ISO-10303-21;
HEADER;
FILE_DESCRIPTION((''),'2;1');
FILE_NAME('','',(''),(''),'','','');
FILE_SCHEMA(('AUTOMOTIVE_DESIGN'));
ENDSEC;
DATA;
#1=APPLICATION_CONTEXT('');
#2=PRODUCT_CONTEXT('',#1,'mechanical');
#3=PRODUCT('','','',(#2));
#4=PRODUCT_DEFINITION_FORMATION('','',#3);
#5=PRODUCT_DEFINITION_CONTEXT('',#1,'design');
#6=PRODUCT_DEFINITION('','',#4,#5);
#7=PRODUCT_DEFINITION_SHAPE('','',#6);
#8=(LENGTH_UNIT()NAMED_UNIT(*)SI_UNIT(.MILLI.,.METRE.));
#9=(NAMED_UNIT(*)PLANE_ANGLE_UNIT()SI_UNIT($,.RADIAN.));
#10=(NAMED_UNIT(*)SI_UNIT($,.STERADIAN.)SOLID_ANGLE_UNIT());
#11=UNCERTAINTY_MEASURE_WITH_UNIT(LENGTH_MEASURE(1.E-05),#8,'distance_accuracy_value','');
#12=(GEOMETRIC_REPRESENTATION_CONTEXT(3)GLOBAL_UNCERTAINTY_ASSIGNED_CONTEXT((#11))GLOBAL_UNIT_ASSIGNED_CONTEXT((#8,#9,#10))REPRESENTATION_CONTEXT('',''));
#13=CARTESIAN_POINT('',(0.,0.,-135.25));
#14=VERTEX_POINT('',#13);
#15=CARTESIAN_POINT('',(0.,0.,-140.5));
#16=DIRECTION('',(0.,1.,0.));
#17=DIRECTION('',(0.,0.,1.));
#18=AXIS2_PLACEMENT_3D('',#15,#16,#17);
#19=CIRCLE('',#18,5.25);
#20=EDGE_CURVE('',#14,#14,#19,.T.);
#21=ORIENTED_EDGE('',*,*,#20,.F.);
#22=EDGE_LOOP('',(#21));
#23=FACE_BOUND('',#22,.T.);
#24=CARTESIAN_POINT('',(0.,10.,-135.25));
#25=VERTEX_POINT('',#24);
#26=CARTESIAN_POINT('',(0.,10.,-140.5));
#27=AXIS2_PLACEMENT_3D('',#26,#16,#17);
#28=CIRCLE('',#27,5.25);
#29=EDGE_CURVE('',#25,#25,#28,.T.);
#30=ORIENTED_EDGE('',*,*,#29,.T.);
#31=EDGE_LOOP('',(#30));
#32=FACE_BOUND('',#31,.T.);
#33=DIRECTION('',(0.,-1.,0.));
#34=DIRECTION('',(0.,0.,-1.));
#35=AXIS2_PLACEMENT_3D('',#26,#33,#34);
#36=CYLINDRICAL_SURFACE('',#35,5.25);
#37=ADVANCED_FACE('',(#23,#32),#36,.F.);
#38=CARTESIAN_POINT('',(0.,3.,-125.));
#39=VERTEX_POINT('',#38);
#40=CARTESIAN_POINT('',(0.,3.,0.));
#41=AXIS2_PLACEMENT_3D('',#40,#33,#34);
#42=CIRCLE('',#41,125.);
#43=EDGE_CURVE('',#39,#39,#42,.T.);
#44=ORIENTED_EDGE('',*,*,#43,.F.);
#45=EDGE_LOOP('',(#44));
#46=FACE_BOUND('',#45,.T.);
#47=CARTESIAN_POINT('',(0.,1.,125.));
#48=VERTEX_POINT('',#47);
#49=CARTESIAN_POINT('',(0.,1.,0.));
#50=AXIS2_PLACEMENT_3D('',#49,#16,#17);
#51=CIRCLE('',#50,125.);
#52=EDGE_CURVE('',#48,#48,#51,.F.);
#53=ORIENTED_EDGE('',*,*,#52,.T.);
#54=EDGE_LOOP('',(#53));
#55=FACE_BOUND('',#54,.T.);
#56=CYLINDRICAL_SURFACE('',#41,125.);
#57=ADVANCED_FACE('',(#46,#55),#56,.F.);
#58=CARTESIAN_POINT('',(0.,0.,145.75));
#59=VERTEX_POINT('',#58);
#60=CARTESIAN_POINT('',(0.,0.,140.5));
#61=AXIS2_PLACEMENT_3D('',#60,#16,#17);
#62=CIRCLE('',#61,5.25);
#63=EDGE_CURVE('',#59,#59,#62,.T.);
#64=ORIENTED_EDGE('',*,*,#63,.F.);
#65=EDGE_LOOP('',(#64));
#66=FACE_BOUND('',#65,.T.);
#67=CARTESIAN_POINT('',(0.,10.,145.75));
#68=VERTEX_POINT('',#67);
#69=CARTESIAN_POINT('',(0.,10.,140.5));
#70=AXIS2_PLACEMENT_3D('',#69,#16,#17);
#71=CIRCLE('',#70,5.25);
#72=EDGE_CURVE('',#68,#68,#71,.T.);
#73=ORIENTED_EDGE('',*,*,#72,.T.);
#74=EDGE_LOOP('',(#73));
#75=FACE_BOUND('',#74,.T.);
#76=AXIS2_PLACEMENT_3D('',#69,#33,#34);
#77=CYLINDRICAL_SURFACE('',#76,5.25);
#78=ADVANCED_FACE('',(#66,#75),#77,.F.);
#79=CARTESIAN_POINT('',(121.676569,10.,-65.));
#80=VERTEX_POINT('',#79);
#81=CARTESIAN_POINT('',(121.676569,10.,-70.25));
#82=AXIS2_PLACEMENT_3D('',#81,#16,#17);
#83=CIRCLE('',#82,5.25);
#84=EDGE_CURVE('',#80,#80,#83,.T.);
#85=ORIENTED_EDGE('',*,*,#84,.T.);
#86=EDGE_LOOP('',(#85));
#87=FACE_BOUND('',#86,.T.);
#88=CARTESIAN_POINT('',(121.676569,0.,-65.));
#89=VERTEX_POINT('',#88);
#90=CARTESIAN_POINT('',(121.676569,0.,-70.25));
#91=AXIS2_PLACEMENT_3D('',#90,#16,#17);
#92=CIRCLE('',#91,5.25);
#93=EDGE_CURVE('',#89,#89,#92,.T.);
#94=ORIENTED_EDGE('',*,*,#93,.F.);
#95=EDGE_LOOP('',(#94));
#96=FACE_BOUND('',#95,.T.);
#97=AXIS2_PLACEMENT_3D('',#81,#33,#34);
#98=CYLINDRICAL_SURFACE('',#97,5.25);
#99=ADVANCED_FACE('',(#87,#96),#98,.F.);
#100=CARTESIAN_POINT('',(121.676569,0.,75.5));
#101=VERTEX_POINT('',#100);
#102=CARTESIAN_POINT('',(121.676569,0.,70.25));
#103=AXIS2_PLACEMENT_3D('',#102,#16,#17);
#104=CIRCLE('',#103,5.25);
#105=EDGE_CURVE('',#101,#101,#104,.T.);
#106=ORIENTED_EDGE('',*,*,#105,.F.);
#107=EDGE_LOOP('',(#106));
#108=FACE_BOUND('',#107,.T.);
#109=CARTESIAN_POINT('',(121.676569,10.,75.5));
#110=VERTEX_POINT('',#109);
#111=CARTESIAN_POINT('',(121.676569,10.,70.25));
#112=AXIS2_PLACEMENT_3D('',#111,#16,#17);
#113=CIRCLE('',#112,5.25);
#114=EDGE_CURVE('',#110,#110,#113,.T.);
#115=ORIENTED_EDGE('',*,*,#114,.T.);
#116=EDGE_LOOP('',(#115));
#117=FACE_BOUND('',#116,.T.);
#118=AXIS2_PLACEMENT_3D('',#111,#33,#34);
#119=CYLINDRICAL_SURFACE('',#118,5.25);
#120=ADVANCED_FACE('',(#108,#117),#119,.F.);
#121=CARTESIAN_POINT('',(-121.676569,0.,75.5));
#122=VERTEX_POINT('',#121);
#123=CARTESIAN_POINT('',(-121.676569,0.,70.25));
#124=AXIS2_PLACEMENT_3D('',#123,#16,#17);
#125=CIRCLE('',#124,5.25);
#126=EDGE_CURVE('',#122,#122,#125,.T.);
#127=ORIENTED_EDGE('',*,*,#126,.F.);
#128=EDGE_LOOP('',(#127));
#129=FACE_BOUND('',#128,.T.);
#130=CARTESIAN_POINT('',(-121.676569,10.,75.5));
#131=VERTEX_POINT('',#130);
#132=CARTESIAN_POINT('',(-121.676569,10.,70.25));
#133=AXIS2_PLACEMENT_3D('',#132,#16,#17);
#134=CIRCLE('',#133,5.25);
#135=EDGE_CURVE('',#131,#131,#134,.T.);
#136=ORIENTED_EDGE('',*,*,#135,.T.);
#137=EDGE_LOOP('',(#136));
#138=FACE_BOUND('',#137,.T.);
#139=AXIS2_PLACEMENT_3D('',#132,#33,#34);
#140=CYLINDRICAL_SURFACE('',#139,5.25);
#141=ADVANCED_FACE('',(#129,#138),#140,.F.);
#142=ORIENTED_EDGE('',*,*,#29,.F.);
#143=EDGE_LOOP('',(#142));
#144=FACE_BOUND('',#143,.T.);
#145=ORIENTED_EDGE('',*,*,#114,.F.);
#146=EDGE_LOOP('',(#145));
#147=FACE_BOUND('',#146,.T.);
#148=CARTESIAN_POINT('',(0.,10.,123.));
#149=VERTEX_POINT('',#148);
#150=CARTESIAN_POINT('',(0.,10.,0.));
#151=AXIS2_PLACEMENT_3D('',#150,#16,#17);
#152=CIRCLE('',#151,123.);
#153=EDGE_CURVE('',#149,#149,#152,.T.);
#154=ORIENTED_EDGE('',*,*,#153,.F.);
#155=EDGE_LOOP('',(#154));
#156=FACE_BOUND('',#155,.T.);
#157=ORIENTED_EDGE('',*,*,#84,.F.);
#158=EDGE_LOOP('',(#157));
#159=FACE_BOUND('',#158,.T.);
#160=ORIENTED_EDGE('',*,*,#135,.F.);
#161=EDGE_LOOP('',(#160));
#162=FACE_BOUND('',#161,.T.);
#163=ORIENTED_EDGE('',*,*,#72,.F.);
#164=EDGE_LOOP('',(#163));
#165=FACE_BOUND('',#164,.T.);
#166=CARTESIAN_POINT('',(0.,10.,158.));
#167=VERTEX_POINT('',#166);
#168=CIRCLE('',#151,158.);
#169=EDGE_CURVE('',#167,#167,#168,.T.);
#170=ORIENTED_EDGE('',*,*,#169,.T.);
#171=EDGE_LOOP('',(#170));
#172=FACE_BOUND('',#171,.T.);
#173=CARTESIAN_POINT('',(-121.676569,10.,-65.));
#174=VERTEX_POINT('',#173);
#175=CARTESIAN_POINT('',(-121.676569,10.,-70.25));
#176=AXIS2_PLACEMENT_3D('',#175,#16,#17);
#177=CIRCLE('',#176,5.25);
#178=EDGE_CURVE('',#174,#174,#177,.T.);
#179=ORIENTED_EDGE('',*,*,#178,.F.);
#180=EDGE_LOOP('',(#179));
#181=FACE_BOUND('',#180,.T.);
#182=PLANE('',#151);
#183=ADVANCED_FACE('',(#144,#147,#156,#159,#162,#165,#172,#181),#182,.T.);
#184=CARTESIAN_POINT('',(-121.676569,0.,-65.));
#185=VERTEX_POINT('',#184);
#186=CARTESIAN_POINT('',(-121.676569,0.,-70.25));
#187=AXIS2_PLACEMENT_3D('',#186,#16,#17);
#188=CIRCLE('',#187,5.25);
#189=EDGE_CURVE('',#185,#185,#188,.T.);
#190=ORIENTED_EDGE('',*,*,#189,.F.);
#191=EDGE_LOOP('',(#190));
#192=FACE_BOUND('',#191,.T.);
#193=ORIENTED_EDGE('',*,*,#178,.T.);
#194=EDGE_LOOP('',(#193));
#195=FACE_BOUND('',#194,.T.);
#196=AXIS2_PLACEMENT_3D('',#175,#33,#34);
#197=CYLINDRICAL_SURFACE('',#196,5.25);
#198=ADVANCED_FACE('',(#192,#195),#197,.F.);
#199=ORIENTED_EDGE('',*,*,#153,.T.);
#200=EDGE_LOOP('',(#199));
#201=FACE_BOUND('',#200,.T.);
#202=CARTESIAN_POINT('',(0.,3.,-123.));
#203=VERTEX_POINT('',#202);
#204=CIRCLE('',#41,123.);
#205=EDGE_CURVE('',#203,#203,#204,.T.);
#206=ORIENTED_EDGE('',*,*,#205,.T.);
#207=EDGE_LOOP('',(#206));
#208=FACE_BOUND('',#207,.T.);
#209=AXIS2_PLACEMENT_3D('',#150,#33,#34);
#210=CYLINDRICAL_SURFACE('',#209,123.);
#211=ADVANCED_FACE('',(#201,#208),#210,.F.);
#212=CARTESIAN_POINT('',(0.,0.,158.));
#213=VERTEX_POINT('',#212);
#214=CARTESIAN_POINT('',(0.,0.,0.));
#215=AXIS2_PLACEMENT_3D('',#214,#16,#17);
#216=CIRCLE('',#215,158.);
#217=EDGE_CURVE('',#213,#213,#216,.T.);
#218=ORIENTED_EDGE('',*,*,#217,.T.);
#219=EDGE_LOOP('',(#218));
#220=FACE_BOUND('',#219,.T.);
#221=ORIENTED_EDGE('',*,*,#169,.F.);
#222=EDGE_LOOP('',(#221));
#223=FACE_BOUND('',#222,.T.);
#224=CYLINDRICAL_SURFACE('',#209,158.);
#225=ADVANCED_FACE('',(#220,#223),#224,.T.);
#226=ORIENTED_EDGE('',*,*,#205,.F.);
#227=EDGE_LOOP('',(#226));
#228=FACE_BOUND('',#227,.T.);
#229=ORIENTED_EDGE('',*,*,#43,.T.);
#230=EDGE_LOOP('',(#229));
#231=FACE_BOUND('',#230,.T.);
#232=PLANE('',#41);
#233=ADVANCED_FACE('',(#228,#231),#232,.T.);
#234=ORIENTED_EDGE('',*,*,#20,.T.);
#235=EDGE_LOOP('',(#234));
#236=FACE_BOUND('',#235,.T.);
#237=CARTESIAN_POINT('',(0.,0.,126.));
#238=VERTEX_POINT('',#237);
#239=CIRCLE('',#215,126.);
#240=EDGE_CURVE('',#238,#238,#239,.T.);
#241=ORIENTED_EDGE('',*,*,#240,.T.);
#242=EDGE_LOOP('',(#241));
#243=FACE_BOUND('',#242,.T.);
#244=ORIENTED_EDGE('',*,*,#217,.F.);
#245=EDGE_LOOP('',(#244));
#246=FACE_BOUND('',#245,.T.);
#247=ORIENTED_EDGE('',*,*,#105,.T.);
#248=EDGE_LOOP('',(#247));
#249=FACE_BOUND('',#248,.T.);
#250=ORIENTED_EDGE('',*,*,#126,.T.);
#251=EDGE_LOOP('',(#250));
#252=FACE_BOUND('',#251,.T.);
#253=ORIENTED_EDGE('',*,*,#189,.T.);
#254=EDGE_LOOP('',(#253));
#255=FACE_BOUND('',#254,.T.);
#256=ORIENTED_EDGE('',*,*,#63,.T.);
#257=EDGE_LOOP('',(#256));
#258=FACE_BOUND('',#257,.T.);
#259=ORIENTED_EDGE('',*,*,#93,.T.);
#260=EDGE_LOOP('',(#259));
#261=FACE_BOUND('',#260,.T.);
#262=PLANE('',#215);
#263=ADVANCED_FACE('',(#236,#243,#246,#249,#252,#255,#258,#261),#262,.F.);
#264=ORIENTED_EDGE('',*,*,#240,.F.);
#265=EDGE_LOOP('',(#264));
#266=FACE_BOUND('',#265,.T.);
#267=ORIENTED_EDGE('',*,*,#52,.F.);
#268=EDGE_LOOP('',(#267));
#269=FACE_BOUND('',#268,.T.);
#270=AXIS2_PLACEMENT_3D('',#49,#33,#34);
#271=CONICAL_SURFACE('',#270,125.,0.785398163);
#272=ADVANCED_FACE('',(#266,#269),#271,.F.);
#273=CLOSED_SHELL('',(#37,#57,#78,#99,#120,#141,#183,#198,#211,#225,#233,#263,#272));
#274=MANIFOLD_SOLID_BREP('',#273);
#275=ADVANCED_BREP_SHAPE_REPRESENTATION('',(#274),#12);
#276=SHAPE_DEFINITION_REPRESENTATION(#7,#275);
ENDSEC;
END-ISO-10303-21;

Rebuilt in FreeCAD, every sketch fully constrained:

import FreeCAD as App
import Part
import Sketcher

V = App.Vector
Q = App.Units.Quantity


def edges_at(feature, points):
    """Names of the edges that pass closest to the given points."""
    edges = feature.Shape.Edges
    near = lambda p: min(range(len(edges)), key=lambda i: edges[i].distToShape(Part.Vertex(*p))[0])
    return sorted({f"Edge{near(p) + 1}" for p in points})

doc = App.newDocument("Part")
body = doc.addObject("PartDesign::Body", "Body")

sketch1 = doc.addObject("Sketcher::SketchObject", "Sketch")
body.addObject(sketch1)
sketch1.AttachmentSupport = (doc.XZ_Plane, [""])
sketch1.MapMode = "FlatFace"
sketch1.addGeometry([
    Part.Circle(V(0, 0, 0), V(0, 0, 1), 158),
    Part.Circle(V(-122, 70, 0), V(0, 0, 1), 5),
    Part.Circle(V(0, 140, 0), V(0, 0, 1), 5),
    Part.Circle(V(122, 70, 0), V(0, 0, 1), 5),
    Part.Circle(V(-122, -70, 0), V(0, 0, 1), 5),
    Part.Circle(V(0, 0, 0), V(0, 0, 1), 123),
    Part.Circle(V(122, -70, 0), V(0, 0, 1), 5),
    Part.Circle(V(0, -140, 0), V(0, 0, 1), 5),
], False)
sketch1.addConstraint([
    Sketcher.Constraint("Coincident", 0, 3, -1, 1),
    Sketcher.Constraint("Coincident", 5, 3, -1, 1),
    Sketcher.Constraint("Equal", 1, 2),
    Sketcher.Constraint("Equal", 2, 3),
    Sketcher.Constraint("Equal", 3, 4),
    Sketcher.Constraint("Equal", 4, 6),
    Sketcher.Constraint("Equal", 6, 7),
    Sketcher.Constraint("Symmetric", 3, 3, 4, 3, -1, 1),
    Sketcher.Constraint("Symmetric", 1, 3, 6, 3, -1, 1),
    Sketcher.Constraint("Symmetric", 2, 3, 7, 3, -1, 1),
    Sketcher.Constraint("Symmetric", 1, 3, 3, 3, -2),
    Sketcher.Constraint("PointOnObject", 2, 3, -2),
    Sketcher.Constraint("Diameter", 0, Q("316 mm")),
    Sketcher.Constraint("Diameter", 5, Q("246 mm")),
    Sketcher.Constraint("Diameter", 1, Q("10.5 mm")),
    Sketcher.Constraint("DistanceY", -1, 1, 2, 3, Q("140.5 mm")),
    Sketcher.Constraint("DistanceY", 4, 3, 1, 3, Q("140.5 mm")),
    Sketcher.Constraint("DistanceX", 1, 3, -1, 1, Q("121.676569 mm")),
])
pad1 = doc.addObject("PartDesign::Pad", "Pad")
body.addObject(pad1)
pad1.Profile = sketch1
pad1.Length = 10
pad1.Reversed = True

sketch2 = doc.addObject("Sketcher::SketchObject", "Sketch001")
body.addObject(sketch2)
sketch2.AttachmentSupport = (doc.XZ_Plane, [""])
sketch2.MapMode = "FlatFace"
sketch2.addGeometry(Part.Circle(V(0, 0, 0), V(0, 0, 1), 125), False)
sketch2.addConstraint([
    Sketcher.Constraint("Coincident", 0, 3, -1, 1),
    Sketcher.Constraint("Diameter", 0, Q("250 mm")),
])
pocket1 = doc.addObject("PartDesign::Pocket", "Pocket")
body.addObject(pocket1)
pocket1.Profile = sketch2
pocket1.Length = 3
doc.recompute()

chamfer = doc.addObject("PartDesign::Chamfer", "Chamfer")
body.addObject(chamfer)
chamfer.Base = (pocket1, edges_at(pocket1, [(-125, 0, 0)]))
chamfer.Size = 1

doc.recompute()
